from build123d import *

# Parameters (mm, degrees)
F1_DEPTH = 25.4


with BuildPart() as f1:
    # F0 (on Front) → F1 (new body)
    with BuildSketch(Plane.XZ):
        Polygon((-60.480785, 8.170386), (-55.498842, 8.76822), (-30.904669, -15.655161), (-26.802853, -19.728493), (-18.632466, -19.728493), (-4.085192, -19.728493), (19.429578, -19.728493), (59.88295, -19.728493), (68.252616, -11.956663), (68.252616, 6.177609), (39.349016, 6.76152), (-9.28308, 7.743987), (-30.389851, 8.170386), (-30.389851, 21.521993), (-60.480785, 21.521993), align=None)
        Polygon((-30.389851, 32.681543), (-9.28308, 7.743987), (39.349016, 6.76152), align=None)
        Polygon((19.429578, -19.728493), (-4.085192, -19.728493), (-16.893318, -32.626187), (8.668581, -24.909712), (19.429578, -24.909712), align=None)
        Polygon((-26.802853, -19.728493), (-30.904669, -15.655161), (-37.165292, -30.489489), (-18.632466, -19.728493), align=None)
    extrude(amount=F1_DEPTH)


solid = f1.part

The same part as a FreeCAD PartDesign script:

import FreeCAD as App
import Part
import Sketcher
from FreeCAD import Vector
Q = App.Units.Quantity

doc = App.newDocument("Part")
params = doc.addObject("Spreadsheet::Sheet", "Params")
for row, (alias, value) in enumerate([
    ("pad1_length", "1 in"),
], start=1):
    params.set(f"A{row}", alias)
    params.set(f"B{row}", "=" + value)
    params.setAlias(f"B{row}", alias)

body = doc.addObject("PartDesign::Body", "Body")

# Sketch on XZ plane
sketch1 = body.newObject("Sketcher::SketchObject", "Sketch")
sketch1.AttachmentSupport = (doc.getObject("XZ_Plane"), [""])
sketch1.MapMode = "FlatFace"
sketch1.addGeometry([
    Part.LineSegment(Vector(-60.480785, 8.170386, 0), Vector(-55.498842, 8.76822, 0)),  # 0
    Part.LineSegment(Vector(-55.498842, 8.76822, 0), Vector(-30.904669, -15.655161, 0)),  # 1
    Part.LineSegment(Vector(-30.904669, -15.655161, 0), Vector(-37.165292, -30.489489, 0)),  # 2
    Part.LineSegment(Vector(-37.165292, -30.489489, 0), Vector(-18.632466, -19.728493, 0)),  # 3
    Part.LineSegment(Vector(-18.632466, -19.728493, 0), Vector(-4.085192, -19.728493, 0)),  # 4
    Part.LineSegment(Vector(-4.085192, -19.728493, 0), Vector(-16.893318, -32.626187, 0)),  # 5
    Part.LineSegment(Vector(-16.893318, -32.626187, 0), Vector(8.668581, -24.909712, 0)),  # 6
    Part.LineSegment(Vector(8.668581, -24.909712, 0), Vector(19.429578, -24.909712, 0)),  # 7
    Part.LineSegment(Vector(19.429578, -24.909712, 0), Vector(19.429578, -19.728493, 0)),  # 8
    Part.LineSegment(Vector(19.429578, -19.728493, 0), Vector(59.88295, -19.728493, 0)),  # 9
    Part.LineSegment(Vector(59.88295, -19.728493, 0), Vector(68.252616, -11.956663, 0)),  # 10
    Part.LineSegment(Vector(68.252616, -11.956663, 0), Vector(68.252616, 6.177609, 0)),  # 11
    Part.LineSegment(Vector(68.252616, 6.177609, 0), Vector(39.349016, 6.76152, 0)),  # 12
    Part.LineSegment(Vector(39.349016, 6.76152, 0), Vector(-30.389851, 32.681543, 0)),  # 13
    Part.LineSegment(Vector(-30.389851, 32.681543, 0), Vector(-9.28308, 7.743987, 0)),  # 14
    Part.LineSegment(Vector(-9.28308, 7.743987, 0), Vector(-30.389851, 8.170386, 0)),  # 15
    Part.LineSegment(Vector(-30.389851, 8.170386, 0), Vector(-30.389851, 21.521993, 0)),  # 16
    Part.LineSegment(Vector(-30.389851, 21.521993, 0), Vector(-60.480785, 21.521993, 0)),  # 17
    Part.LineSegment(Vector(-60.480785, 21.521993, 0), Vector(-60.480785, 8.170386, 0)),  # 18
], False)
sketch1.addConstraint([
    Sketcher.Constraint("Coincident", 0, 2, 1, 1),
    Sketcher.Constraint("Coincident", 1, 2, 2, 1),
    Sketcher.Constraint("Coincident", 2, 2, 3, 1),
    Sketcher.Constraint("Coincident", 3, 2, 4, 1),
    Sketcher.Constraint("Coincident", 4, 2, 5, 1),
    Sketcher.Constraint("Coincident", 5, 2, 6, 1),
    Sketcher.Constraint("Coincident", 6, 2, 7, 1),
    Sketcher.Constraint("Coincident", 7, 2, 8, 1),
    Sketcher.Constraint("Coincident", 8, 2, 9, 1),
    Sketcher.Constraint("Coincident", 9, 2, 10, 1),
    Sketcher.Constraint("Coincident", 10, 2, 11, 1),
    Sketcher.Constraint("Coincident", 11, 2, 12, 1),
    Sketcher.Constraint("Coincident", 12, 2, 13, 1),
    Sketcher.Constraint("Coincident", 13, 2, 14, 1),
    Sketcher.Constraint("Coincident", 14, 2, 15, 1),
    Sketcher.Constraint("Coincident", 15, 2, 16, 1),
    Sketcher.Constraint("Coincident", 16, 2, 17, 1),
    Sketcher.Constraint("Coincident", 17, 2, 18, 1),
    Sketcher.Constraint("Coincident", 18, 2, 0, 1),
    Sketcher.Constraint("Horizontal", 4),
    Sketcher.Constraint("Horizontal", 7),
    Sketcher.Constraint("Vertical", 8),
    Sketcher.Constraint("Horizontal", 9),
    Sketcher.Constraint("Vertical", 11),
    Sketcher.Constraint("Vertical", 16),
    Sketcher.Constraint("Horizontal", 17),
    Sketcher.Constraint("Vertical", 18),
    Sketcher.Constraint("Perpendicular", 1, 5),
    Sketcher.Constraint("Parallel", 12, 15),
    Sketcher.Constraint("Horizontal", 4, 2, 8, 2),
    Sketcher.Constraint("Horizontal", 15, 2, 18, 2),
    Sketcher.Constraint("Vertical", 13, 2, 15, 2),
    Sketcher.Constraint("DistanceY", 8, 1, 8, 2, Q("5.181219 mm")),
    Sketcher.Constraint("DistanceX", 2, 2, 4, 2, Q("33.0801 mm")),
    Sketcher.Constraint("DistanceY", 5, 2, 2, 2, Q("2.136698 mm")),
    Sketcher.Constraint("DistanceX", 5, 2, 6, 2, Q("25.561899 mm")),
    Sketcher.Constraint("DistanceX", 12, 2, 11, 2, Q("28.9036 mm")),
    Sketcher.Constraint("DistanceY", 6, 2, 14, 2, Q("32.653699 mm")),
    Sketcher.Constraint("DistanceY", 14, 2, 15, 2, Q("0.426399 mm")),
    Sketcher.Constraint("Distance", 3, Q("21.430461 mm")),
    Sketcher.Constraint("Distance", 5, Q("18.17687 mm")),
    Sketcher.Constraint("Distance", 6, Q("26.701211 mm")),
    Sketcher.Constraint("Distance", 13, Q("74.399981 mm")),
    Sketcher.Constraint("DistanceX", 7, 1, 7, 2, Q("10.760997 mm")),
    Sketcher.Constraint("DistanceX", 9, 1, 9, 2, Q("40.453372 mm")),
    Sketcher.Constraint("DistanceX", 17, 2, 17, 1, Q("30.090934 mm")),
    Sketcher.Constraint("DistanceY", 11, 1, 11, 2, Q("18.134272 mm")),
    Sketcher.Constraint("DistanceY", 16, 1, 16, 2, Q("13.351607 mm")),
    Sketcher.Constraint("DistanceY", -1, 1, 0, 2, Q("8.76822 mm")),
    Sketcher.Constraint("DistanceX", 1, 2, -1, 1, Q("30.904669 mm")),
    Sketcher.Constraint("DistanceY", 1, 2, -1, 1, Q("15.655161 mm")),
    Sketcher.Constraint("DistanceY", 2, 2, -1, 1, Q("30.489489 mm")),
    Sketcher.Constraint("DistanceX", 5, 2, -1, 1, Q("16.893318 mm")),
    Sketcher.Constraint("DistanceY", -1, 1, 11, 2, Q("6.177609 mm")),
    Sketcher.Constraint("DistanceY", -1, 1, 12, 2, Q("6.76152 mm")),
    Sketcher.Constraint("DistanceX", 13, 2, -1, 1, Q("30.389851 mm")),
    Sketcher.Constraint("DistanceX", 8, 2, 10, 2, Q("48.823038 mm")),
])
pad1 = body.newObject("PartDesign::Pad", "Pad")
pad1.Profile = sketch1
pad1.setExpression("Length", "Params.pad1_length")

doc.recompute()
